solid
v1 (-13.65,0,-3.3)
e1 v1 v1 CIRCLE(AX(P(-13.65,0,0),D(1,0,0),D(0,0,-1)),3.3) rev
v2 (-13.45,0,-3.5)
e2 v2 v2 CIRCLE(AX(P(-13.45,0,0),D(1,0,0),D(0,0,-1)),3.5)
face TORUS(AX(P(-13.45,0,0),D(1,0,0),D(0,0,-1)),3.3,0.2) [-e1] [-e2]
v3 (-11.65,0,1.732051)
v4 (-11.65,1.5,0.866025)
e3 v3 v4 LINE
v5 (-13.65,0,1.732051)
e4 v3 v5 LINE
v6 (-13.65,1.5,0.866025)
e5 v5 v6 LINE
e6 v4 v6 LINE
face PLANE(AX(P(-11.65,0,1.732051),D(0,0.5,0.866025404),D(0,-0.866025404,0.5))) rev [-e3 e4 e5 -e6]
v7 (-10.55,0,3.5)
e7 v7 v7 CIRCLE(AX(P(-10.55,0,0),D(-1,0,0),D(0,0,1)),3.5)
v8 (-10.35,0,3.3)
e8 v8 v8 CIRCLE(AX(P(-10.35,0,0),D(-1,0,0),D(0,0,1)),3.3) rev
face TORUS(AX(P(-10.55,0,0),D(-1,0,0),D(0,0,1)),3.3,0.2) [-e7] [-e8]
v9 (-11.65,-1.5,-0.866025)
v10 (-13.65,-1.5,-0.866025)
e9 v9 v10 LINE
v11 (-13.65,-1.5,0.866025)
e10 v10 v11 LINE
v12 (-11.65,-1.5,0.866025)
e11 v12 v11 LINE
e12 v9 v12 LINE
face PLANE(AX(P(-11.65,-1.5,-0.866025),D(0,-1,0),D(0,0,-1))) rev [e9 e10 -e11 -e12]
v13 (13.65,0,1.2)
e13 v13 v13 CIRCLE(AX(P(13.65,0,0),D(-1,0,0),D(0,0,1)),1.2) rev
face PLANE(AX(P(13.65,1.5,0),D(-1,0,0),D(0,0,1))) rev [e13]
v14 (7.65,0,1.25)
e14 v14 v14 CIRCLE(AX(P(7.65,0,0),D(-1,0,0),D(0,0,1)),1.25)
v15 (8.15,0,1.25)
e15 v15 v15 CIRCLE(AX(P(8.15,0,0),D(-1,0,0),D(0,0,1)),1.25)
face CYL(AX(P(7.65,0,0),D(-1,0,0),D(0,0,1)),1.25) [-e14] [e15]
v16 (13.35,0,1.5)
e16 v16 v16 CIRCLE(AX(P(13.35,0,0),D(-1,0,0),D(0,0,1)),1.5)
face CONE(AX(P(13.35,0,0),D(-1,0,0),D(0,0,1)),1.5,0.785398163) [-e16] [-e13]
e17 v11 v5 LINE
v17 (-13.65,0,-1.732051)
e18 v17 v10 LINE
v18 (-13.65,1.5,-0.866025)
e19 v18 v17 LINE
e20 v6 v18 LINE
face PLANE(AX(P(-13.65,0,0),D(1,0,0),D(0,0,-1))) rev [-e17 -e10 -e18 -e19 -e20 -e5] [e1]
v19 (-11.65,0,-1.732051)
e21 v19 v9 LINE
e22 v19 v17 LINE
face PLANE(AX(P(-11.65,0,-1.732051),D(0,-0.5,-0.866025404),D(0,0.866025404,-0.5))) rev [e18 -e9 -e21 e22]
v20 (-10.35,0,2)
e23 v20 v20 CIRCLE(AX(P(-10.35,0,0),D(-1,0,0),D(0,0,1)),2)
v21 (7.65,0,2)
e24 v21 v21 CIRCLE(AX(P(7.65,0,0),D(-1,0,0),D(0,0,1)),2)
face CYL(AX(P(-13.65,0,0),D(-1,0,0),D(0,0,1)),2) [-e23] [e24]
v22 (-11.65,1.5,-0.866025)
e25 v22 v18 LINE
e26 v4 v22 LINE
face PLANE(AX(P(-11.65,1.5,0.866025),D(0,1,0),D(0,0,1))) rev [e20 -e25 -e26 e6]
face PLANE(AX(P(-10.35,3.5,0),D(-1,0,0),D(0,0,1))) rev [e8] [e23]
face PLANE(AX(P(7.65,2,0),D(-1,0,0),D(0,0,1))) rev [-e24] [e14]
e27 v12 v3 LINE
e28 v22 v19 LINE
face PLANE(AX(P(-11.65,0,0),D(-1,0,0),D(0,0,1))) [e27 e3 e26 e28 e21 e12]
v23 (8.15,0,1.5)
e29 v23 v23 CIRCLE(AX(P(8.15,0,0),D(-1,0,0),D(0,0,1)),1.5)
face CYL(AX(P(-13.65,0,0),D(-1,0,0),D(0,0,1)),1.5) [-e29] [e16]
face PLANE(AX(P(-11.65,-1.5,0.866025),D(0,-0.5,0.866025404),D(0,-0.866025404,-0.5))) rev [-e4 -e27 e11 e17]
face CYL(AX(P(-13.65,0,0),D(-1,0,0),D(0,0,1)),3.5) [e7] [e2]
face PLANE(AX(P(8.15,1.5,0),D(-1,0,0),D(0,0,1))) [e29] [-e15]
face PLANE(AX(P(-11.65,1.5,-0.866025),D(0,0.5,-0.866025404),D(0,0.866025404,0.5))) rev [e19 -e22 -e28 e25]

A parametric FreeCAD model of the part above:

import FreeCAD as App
import Part
import Sketcher
Q = App.Units.Quantity


def edges_at(feature, points):
    """Names of the edges that pass closest to the given points."""
    edges = feature.Shape.Edges
    near = lambda p: min(range(len(edges)), key=lambda i: edges[i].distToShape(Part.Vertex(*p))[0])
    return sorted({f"Edge{near(p) + 1}" for p in points})

doc = App.newDocument("Part")
body = doc.addObject("PartDesign::Body", "Body")

# Sketch on XY plane
sketch1 = body.newObject("Sketcher::SketchObject", "Sketch")
sketch1.AttachmentSupport = (doc.getObject("XY_Plane"), [""])
sketch1.MapMode = "FlatFace"
sketch1.addGeometry([
    Part.LineSegment(App.Vector(-13.65, 3.5, 0), App.Vector(-13.65, 0, 0)),  # 0
    Part.LineSegment(App.Vector(-13.65, 0, 0), App.Vector(13.65, 0, 0)),  # 1
    Part.LineSegment(App.Vector(13.65, 0, 0), App.Vector(13.65, 1.5, 0)),  # 2
    Part.LineSegment(App.Vector(13.65, 1.5, 0), App.Vector(7.65, 1.5, 0)),  # 3
    Part.LineSegment(App.Vector(7.65, 1.5, 0), App.Vector(7.65, 2, 0)),  # 4
    Part.LineSegment(App.Vector(7.65, 2, 0), App.Vector(-10.35, 2, 0)),  # 5
    Part.LineSegment(App.Vector(-10.35, 2, 0), App.Vector(-10.35, 3.5, 0)),  # 6
    Part.LineSegment(App.Vector(-10.35, 3.5, 0), App.Vector(-13.65, 3.5, 0)),  # 7
], False)
sketch1.addConstraint([
    Sketcher.Constraint("Coincident", 0, 2, 1, 1),
    Sketcher.Constraint("Coincident", 1, 2, 2, 1),
    Sketcher.Constraint("Coincident", 2, 2, 3, 1),
    Sketcher.Constraint("Coincident", 3, 2, 4, 1),
    Sketcher.Constraint("Coincident", 4, 2, 5, 1),
    Sketcher.Constraint("Coincident", 5, 2, 6, 1),
    Sketcher.Constraint("Coincident", 6, 2, 7, 1),
    Sketcher.Constraint("Coincident", 7, 2, 0, 1),
    Sketcher.Constraint("Vertical", 0),
    Sketcher.Constraint("Horizontal", 1),
    Sketcher.Constraint("Vertical", 2),
    Sketcher.Constraint("Horizontal", 3),
    Sketcher.Constraint("Vertical", 4),
    Sketcher.Constraint("Horizontal", 5),
    Sketcher.Constraint("Vertical", 6),
    Sketcher.Constraint("Horizontal", 7),
    Sketcher.Constraint("Symmetric", 0, 2, 1, 2, -1, 1),
    Sketcher.Constraint("Equal", 2, 6),
    Sketcher.Constraint("DistanceX", 3, 2, 3, 1, 6.0),
    Sketcher.Constraint("DistanceX", 5, 2, 5, 1, 18.0),
    Sketcher.Constraint("DistanceX", 1, 1, 1, 2, 27.3),
    Sketcher.Constraint("DistanceY", 0, 2, 0, 1, 3.5),
    Sketcher.Constraint("DistanceY", 2, 1, 2, 2, 1.5),
])
revolution = body.newObject("PartDesign::Revolution", "Revolution")
revolution.Profile = sketch1
revolution.ReferenceAxis = (sketch1, ["H_Axis"])
revolution.Angle = 360
doc.recompute()

fillet = body.newObject("PartDesign::Fillet", "Fillet")
fillet.Base = (revolution, edges_at(revolution, [(-10.35, 0, -3.5), (-13.65, 0, -3.5)]))
fillet.Radius = 0.2
doc.recompute()

chamfer = body.newObject("PartDesign::Chamfer", "Chamfer")
chamfer.Base = (fillet, edges_at(fillet, [(13.65, 0, -1.5)]))
chamfer.Size = 0.3

# Sketch on XY plane
sketch2 = body.newObject("Sketcher::SketchObject", "Sketch001")
sketch2.AttachmentSupport = (doc.getObject("XY_Plane"), [""])
sketch2.MapMode = "FlatFace"
sketch2.addGeometry([
    Part.LineSegment(App.Vector(7.65, 1.5, 0), App.Vector(7.65, 1.25, 0)),
    Part.LineSegment(App.Vector(7.65, 1.25, 0), App.Vector(8.15, 1.25, 0)),
    Part.LineSegment(App.Vector(8.15, 1.25, 0), App.Vector(8.15, 1.5, 0)),
    Part.LineSegment(App.Vector(8.15, 1.5, 0), App.Vector(7.65, 1.5, 0)),
], False)
sketch2.addConstraint([
    Sketcher.Constraint("Coincident", 0, 2, 1, 1),
    Sketcher.Constraint("Coincident", 1, 2, 2, 1),
    Sketcher.Constraint("Coincident", 2, 2, 3, 1),
    Sketcher.Constraint("Coincident", 3, 2, 0, 1),
    Sketcher.Constraint("Vertical", 0),
    Sketcher.Constraint("Horizontal", 1),
    Sketcher.Constraint("Vertical", 2),
    Sketcher.Constraint("Horizontal", 3),
    Sketcher.Constraint("DistanceX", 1, 1, 1, 2, 0.5),
    Sketcher.Constraint("DistanceY", 0, 2, 0, 1, 0.25),
    Sketcher.Constraint("DistanceY", -1, 1, 2, 2, 1.5),
    Sketcher.Constraint("DistanceX", -1, 1, 0, 2, 7.65),
])
groove = body.newObject("PartDesign::Groove", "Groove")
groove.Profile = sketch2
groove.ReferenceAxis = (sketch2, ["H_Axis"])
groove.Angle = 360

# Sketch on YZ plane
sketch3 = body.newObject("Sketcher::SketchObject", "Sketch002")
sketch3.AttachmentSupport = (doc.getObject("YZ_Plane"), [""])
sketch3.MapMode = "FlatFace"
sketch3.AttachmentOffset = App.Placement(App.Vector(0, 0, -13.65), App.Rotation())
sketch3.addGeometry([
    Part.LineSegment(App.Vector(0, 1.732051, 0), App.Vector(1.5, 0.866025, 0)),  # 0
    Part.LineSegment(App.Vector(1.5, 0.866025, 0), App.Vector(1.5, -0.866025, 0)),  # 1
    Part.LineSegment(App.Vector(1.5, -0.866025, 0), App.Vector(0, -1.732051, 0)),  # 2
    Part.LineSegment(App.Vector(0, -1.732051, 0), App.Vector(-1.5, -0.866025, 0)),  # 3
    Part.LineSegment(App.Vector(-1.5, -0.866025, 0), App.Vector(-1.5, 0.866025, 0)),  # 4
    Part.LineSegment(App.Vector(-1.5, 0.866025, 0), App.Vector(0, 1.732051, 0)),  # 5
], False)
sketch3.addConstraint([
    Sketcher.Constraint("Coincident", 0, 2, 1, 1),
    Sketcher.Constraint("Coincident", 1, 2, 2, 1),
    Sketcher.Constraint("Coincident", 2, 2, 3, 1),
    Sketcher.Constraint("Coincident", 3, 2, 4, 1),
    Sketcher.Constraint("Coincident", 4, 2, 5, 1),
    Sketcher.Constraint("Coincident", 5, 2, 0, 1),
    Sketcher.Constraint("Vertical", 1),
    Sketcher.Constraint("Vertical", 4),
    Sketcher.Constraint("Symmetric", 0, 2, 3, 2, -1, 1),
    Sketcher.Constraint("Symmetric", 2, 2, 5, 2, -1, 1),
    Sketcher.Constraint("PointOnObject", 2, 2, -2),
    Sketcher.Constraint("Parallel", 2, 5),
    Sketcher.Constraint("Horizontal", 1, 2, 3, 2),
    Sketcher.Constraint("Angle", 0, Q("-30 deg")),
    Sketcher.Constraint("DistanceX", 3, 2, 1, 2, 3.0),
    Sketcher.Constraint("DistanceY", 1, 2, 1, 1, 1.732051),
])
pocket1 = body.newObject("PartDesign::Pocket", "Pocket")
pocket1.Profile = sketch3
pocket1.Length = 2
pocket1.Reversed = True

doc.recompute()
